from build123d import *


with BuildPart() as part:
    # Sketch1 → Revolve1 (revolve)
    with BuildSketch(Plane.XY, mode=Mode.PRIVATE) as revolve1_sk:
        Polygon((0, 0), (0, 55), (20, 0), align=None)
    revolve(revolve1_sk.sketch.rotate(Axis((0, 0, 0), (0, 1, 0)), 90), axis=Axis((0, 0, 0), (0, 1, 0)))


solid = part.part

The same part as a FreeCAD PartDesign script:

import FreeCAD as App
import Part
import Sketcher

V = App.Vector
Q = App.Units.Quantity

doc = App.newDocument("Part")
body = doc.addObject("PartDesign::Body", "Body")

# Sketch on XY plane
sketch1 = body.newObject("Sketcher::SketchObject", "Sketch")
sketch1.AttachmentSupport = (doc.getObject("XY_Plane"), [""])
sketch1.MapMode = "FlatFace"
sketch1.addGeometry(Part.LineSegment(V(0, 55, 0), V(0, 0, 0)), False)
sketch1.addGeometry(Part.LineSegment(V(0, 0, 0), V(20, 0, 0)), False)
sketch1.addGeometry(Part.LineSegment(V(20, 0, 0), V(0, 55, 0)), False)
sketch1.addConstraint(Sketcher.Constraint("Coincident", 0, 2, 1, 1))
sketch1.addConstraint(Sketcher.Constraint("Coincident", 1, 2, 2, 1))
sketch1.addConstraint(Sketcher.Constraint("Coincident", 2, 2, 0, 1))
sketch1.addConstraint(Sketcher.Constraint("Vertical", 0))
sketch1.addConstraint(Sketcher.Constraint("Horizontal", 1))
sketch1.addConstraint(Sketcher.Constraint("Coincident", 0, 2, -1, 1))
sketch1.addConstraint(Sketcher.Constraint("DistanceX", 1, 1, 1, 2, Q("20 mm")))
sketch1.addConstraint(Sketcher.Constraint("DistanceY", 0, 2, 0, 1, Q("55 mm")))
revolution = body.newObject("PartDesign::Revolution", "Revolution")
revolution.Profile = sketch1
revolution.ReferenceAxis = (sketch1, ["V_Axis"])
revolution.Angle = 360

doc.recompute()
